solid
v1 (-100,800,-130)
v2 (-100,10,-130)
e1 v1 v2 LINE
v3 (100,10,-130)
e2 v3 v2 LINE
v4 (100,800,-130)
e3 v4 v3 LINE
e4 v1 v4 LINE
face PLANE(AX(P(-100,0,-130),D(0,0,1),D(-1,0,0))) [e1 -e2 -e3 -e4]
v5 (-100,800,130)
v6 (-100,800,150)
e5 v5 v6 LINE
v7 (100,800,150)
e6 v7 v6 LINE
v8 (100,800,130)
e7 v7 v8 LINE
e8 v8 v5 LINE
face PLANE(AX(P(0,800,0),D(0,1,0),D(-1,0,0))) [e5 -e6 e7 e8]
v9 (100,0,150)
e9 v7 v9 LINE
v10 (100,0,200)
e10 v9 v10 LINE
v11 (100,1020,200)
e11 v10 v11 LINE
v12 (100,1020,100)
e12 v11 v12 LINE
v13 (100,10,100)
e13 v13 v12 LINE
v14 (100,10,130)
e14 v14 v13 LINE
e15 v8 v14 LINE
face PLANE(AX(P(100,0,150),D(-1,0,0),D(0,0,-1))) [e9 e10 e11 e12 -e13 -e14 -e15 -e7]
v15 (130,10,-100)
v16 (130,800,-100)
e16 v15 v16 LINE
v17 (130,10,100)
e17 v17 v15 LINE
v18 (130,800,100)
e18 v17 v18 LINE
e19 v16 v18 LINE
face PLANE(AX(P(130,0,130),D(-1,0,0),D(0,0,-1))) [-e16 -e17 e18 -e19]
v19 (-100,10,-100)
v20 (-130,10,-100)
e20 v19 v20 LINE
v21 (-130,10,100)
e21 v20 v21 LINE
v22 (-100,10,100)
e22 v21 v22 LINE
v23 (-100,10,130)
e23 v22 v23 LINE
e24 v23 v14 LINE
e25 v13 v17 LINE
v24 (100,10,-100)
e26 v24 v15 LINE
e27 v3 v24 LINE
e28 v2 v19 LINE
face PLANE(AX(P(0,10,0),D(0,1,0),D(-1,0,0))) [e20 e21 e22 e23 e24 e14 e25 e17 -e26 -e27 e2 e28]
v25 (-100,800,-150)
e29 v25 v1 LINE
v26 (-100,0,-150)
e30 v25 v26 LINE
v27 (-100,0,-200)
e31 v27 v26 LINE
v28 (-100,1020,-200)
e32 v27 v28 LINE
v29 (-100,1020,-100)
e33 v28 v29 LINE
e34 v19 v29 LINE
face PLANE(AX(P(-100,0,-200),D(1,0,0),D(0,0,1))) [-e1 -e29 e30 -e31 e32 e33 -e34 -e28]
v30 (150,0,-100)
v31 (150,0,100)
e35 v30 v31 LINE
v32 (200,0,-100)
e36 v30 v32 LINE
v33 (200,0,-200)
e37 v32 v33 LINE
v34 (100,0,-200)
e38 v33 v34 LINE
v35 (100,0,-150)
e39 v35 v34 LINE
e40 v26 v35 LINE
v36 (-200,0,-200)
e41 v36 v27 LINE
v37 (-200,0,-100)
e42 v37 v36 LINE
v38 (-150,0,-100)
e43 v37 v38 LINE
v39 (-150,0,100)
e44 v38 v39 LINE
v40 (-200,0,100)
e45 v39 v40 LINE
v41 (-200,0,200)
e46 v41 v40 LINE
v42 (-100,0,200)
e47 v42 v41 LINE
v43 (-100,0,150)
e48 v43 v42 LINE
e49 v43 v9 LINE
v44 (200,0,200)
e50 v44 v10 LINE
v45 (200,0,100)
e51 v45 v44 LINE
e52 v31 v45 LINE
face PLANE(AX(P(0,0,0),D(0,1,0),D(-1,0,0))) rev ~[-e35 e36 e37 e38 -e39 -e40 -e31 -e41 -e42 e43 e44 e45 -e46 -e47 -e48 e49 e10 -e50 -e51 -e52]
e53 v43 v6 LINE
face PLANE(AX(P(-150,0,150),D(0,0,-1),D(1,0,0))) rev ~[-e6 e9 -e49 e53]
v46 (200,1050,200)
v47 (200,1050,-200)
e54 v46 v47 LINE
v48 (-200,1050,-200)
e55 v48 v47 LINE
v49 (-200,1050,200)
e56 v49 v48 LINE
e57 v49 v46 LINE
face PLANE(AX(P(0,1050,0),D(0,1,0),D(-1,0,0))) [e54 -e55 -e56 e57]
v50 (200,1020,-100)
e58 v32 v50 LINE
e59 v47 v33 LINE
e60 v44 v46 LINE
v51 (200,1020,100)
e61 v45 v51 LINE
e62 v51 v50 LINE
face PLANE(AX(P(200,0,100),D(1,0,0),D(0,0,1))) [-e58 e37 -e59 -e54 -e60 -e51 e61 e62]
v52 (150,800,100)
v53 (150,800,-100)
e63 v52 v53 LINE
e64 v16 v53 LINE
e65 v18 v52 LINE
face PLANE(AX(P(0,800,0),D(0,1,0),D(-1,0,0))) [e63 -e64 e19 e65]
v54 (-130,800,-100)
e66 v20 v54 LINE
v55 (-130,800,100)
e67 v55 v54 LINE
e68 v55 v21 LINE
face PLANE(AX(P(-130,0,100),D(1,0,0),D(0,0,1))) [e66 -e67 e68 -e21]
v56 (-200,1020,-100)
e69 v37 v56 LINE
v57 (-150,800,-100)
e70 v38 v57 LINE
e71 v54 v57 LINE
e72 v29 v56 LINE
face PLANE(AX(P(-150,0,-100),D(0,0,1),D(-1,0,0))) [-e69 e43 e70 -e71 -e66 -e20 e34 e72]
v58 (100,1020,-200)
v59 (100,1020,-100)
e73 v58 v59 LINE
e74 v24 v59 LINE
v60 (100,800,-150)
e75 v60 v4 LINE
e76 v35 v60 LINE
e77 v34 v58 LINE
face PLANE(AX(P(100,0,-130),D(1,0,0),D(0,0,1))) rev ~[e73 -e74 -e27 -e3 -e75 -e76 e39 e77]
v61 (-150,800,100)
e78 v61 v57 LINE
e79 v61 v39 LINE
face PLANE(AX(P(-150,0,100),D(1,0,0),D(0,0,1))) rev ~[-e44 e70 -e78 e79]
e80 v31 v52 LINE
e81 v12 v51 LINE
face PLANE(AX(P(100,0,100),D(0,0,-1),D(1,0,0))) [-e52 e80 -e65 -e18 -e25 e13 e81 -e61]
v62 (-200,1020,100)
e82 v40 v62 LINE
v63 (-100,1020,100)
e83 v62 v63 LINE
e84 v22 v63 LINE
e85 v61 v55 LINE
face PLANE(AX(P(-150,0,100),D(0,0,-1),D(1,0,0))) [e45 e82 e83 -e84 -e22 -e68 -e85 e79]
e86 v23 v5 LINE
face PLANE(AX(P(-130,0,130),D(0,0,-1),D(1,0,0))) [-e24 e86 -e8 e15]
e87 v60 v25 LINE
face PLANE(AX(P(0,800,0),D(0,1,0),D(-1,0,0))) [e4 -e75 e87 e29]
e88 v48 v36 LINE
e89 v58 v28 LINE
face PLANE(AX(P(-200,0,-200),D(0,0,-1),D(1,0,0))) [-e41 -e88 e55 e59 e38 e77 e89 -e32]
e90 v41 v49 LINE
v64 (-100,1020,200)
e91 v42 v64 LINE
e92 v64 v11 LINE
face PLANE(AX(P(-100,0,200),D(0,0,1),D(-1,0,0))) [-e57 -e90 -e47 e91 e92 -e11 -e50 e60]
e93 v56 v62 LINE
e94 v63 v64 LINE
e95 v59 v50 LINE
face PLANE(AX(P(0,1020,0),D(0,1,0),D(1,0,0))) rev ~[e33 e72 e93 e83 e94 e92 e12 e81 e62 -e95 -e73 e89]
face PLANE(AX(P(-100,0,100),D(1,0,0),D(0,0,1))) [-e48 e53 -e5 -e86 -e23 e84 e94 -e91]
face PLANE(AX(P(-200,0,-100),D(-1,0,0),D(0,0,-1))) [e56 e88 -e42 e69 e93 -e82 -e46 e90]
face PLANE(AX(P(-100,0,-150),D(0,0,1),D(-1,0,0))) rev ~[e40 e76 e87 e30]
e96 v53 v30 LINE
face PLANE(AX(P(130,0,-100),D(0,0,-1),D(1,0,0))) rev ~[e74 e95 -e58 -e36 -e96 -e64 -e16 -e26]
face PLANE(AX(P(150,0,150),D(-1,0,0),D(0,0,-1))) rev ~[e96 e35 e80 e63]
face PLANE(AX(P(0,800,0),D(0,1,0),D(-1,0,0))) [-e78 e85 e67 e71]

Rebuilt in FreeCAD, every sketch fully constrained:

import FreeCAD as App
import Part
import Sketcher

V = App.Vector

doc = App.newDocument("Part")
params = doc.addObject("Spreadsheet::Sheet", "Params")
for row, (alias, value) in enumerate([
    ("sketch1_width", "100 mm"),
    ("pad1_length", "1050 mm"),
    ("sketch2_width", "300 mm"),
    ("sketch2_width2", "260 mm"),
    ("pad2_length", "800 mm"),
    ("sketch3_width", "400 mm"),
    ("pad3_length", "30 mm"),
    ("sketch4_width", "300 mm"),
    ("pad4_length", "10 mm"),
], start=1):
    params.set(f"A{row}", alias)
    params.set(f"B{row}", "=" + value)
    params.setAlias(f"B{row}", alias)

body = doc.addObject("PartDesign::Body", "Body")
body.AllowCompound = True

# Sketch on XZ plane
sketch1 = doc.addObject("Sketcher::SketchObject", "Sketch")
body.addObject(sketch1)
sketch1.AttachmentSupport = (doc.XZ_Plane, [""])
sketch1.MapMode = "FlatFace"
sketch1.addGeometry([
    Part.LineSegment(V(-200, 100, 0), V(-200, 200, 0)),  # 0
    Part.LineSegment(V(-200, 200, 0), V(-100, 200, 0)),  # 1
    Part.LineSegment(V(-100, 200, 0), V(-100, 100, 0)),  # 2
    Part.LineSegment(V(-100, 100, 0), V(-200, 100, 0)),  # 3
    Part.LineSegment(V(100, 200, 0), V(200, 200, 0)),  # 4
    Part.LineSegment(V(200, 200, 0), V(200, 100, 0)),  # 5
    Part.LineSegment(V(200, 100, 0), V(100, 100, 0)),  # 6
    Part.LineSegment(V(100, 100, 0), V(100, 200, 0)),  # 7
    Part.LineSegment(V(-200, -100, 0), V(-100, -100, 0)),  # 8
    Part.LineSegment(V(-100, -100, 0), V(-100, -200, 0)),  # 9
    Part.LineSegment(V(-100, -200, 0), V(-200, -200, 0)),  # 10
    Part.LineSegment(V(-200, -200, 0), V(-200, -100, 0)),  # 11
    Part.LineSegment(V(200, -100, 0), V(200, -200, 0)),  # 12
    Part.LineSegment(V(200, -200, 0), V(100, -200, 0)),  # 13
    Part.LineSegment(V(100, -200, 0), V(100, -100, 0)),  # 14
    Part.LineSegment(V(100, -100, 0), V(200, -100, 0)),  # 15
], False)
sketch1.addConstraint([
    Sketcher.Constraint("Coincident", 0, 2, 1, 1),
    Sketcher.Constraint("Coincident", 1, 2, 2, 1),
    Sketcher.Constraint("Coincident", 2, 2, 3, 1),
    Sketcher.Constraint("Coincident", 3, 2, 0, 1),
    Sketcher.Constraint("Coincident", 4, 2, 5, 1),
    Sketcher.Constraint("Coincident", 5, 2, 6, 1),
    Sketcher.Constraint("Coincident", 6, 2, 7, 1),
    Sketcher.Constraint("Coincident", 7, 2, 4, 1),
    Sketcher.Constraint("Coincident", 8, 2, 9, 1),
    Sketcher.Constraint("Coincident", 9, 2, 10, 1),
    Sketcher.Constraint("Coincident", 10, 2, 11, 1),
    Sketcher.Constraint("Coincident", 11, 2, 8, 1),
    Sketcher.Constraint("Coincident", 12, 2, 13, 1),
    Sketcher.Constraint("Coincident", 13, 2, 14, 1),
    Sketcher.Constraint("Coincident", 14, 2, 15, 1),
    Sketcher.Constraint("Coincident", 15, 2, 12, 1),
    Sketcher.Constraint("Vertical", 0),
    Sketcher.Constraint("Horizontal", 1),
    Sketcher.Constraint("Vertical", 2),
    Sketcher.Constraint("Horizontal", 3),
    Sketcher.Constraint("Horizontal", 4),
    Sketcher.Constraint("Vertical", 5),
    Sketcher.Constraint("Horizontal", 6),
    Sketcher.Constraint("Vertical", 7),
    Sketcher.Constraint("Horizontal", 8),
    Sketcher.Constraint("Vertical", 9),
    Sketcher.Constraint("Horizontal", 10),
    Sketcher.Constraint("Vertical", 11),
    Sketcher.Constraint("Vertical", 12),
    Sketcher.Constraint("Horizontal", 13),
    Sketcher.Constraint("Vertical", 14),
    Sketcher.Constraint("Horizontal", 15),
    Sketcher.Constraint("Symmetric", 6, 2, 8, 2, -1, 1),
    Sketcher.Constraint("Symmetric", 4, 2, 10, 2, -1, 1),
    Sketcher.Constraint("Symmetric", 0, 2, 12, 2, -1, 1),
    Sketcher.Constraint("Symmetric", 2, 2, 14, 2, -1, 1),
    Sketcher.Constraint("Symmetric", 0, 2, 4, 2, -2),
    Sketcher.Constraint("Symmetric", 2, 2, 6, 2, -2),
    Sketcher.Constraint("Equal", 15, 0),
    Sketcher.Constraint("DistanceX", 1, 1, 1, 2, 100.0),
    Sketcher.Constraint("DistanceX", 1, 2, -1, 1, 100.0),
    Sketcher.Constraint("DistanceY", -1, 1, 2, 2, 100.0),
])
sketch1.setExpression("Constraints[39]", "Params.sketch1_width")
pad1 = doc.addObject("PartDesign::Pad", "Pad")
body.addObject(pad1)
pad1.Profile = sketch1
pad1.setExpression("Length", "Params.pad1_length")
pad1.Reversed = True

# Sketch on XZ plane
sketch2 = doc.addObject("Sketcher::SketchObject", "Sketch001")
body.addObject(sketch2)
sketch2.AttachmentSupport = (doc.XZ_Plane, [""])
sketch2.MapMode = "FlatFace"
sketch2.addGeometry([
    Part.LineSegment(V(-150, 150, 0), V(150, 150, 0)),  # 0
    Part.LineSegment(V(150, 150, 0), V(150, -150, 0)),  # 1
    Part.LineSegment(V(150, -150, 0), V(-150, -150, 0)),  # 2
    Part.LineSegment(V(-150, -150, 0), V(-150, 150, 0)),  # 3
    Part.LineSegment(V(-130, 130, 0), V(-130, -130, 0)),  # 4
    Part.LineSegment(V(-130, -130, 0), V(130, -130, 0)),  # 5
    Part.LineSegment(V(130, -130, 0), V(130, 130, 0)),  # 6
    Part.LineSegment(V(130, 130, 0), V(-130, 130, 0)),  # 7
], False)
sketch2.addConstraint([
    Sketcher.Constraint("Coincident", 0, 2, 1, 1),
    Sketcher.Constraint("Coincident", 1, 2, 2, 1),
    Sketcher.Constraint("Coincident", 2, 2, 3, 1),
    Sketcher.Constraint("Coincident", 3, 2, 0, 1),
    Sketcher.Constraint("Coincident", 4, 2, 5, 1),
    Sketcher.Constraint("Coincident", 5, 2, 6, 1),
    Sketcher.Constraint("Coincident", 6, 2, 7, 1),
    Sketcher.Constraint("Coincident", 7, 2, 4, 1),
    Sketcher.Constraint("Horizontal", 0),
    Sketcher.Constraint("Vertical", 1),
    Sketcher.Constraint("Horizontal", 2),
    Sketcher.Constraint("Vertical", 3),
    Sketcher.Constraint("Vertical", 4),
    Sketcher.Constraint("Horizontal", 5),
    Sketcher.Constraint("Vertical", 6),
    Sketcher.Constraint("Horizontal", 7),
    Sketcher.Constraint("Symmetric", 0, 2, 2, 2, -1, 1),
    Sketcher.Constraint("Symmetric", 4, 2, 6, 2, -1, 1),
    Sketcher.Constraint("Equal", 2, 1),
    Sketcher.Constraint("Equal", 7, 4),
    Sketcher.Constraint("DistanceX", 0, 1, 0, 2, 300.0),
    Sketcher.Constraint("DistanceX", 5, 1, 5, 2, 260.0),
])
sketch2.setExpression("Constraints[20]", "Params.sketch2_width")
sketch2.setExpression("Constraints[21]", "Params.sketch2_width2")
pad2 = doc.addObject("PartDesign::Pad", "Pad001")
body.addObject(pad2)
pad2.Profile = sketch2
pad2.setExpression("Length", "Params.pad2_length")
pad2.Reversed = True

# Sketch on XZ plane
sketch3 = doc.addObject("Sketcher::SketchObject", "Sketch002")
body.addObject(sketch3)
sketch3.AttachmentSupport = (doc.XZ_Plane, [""])
sketch3.MapMode = "FlatFace"
sketch3.AttachmentOffset = App.Placement(V(0, 0, -1050), App.Rotation())
sketch3.addGeometry([
    Part.LineSegment(V(-200, -200, 0), V(-200, 200, 0)),
    Part.LineSegment(V(-200, 200, 0), V(200, 200, 0)),
    Part.LineSegment(V(200, 200, 0), V(200, -200, 0)),
    Part.LineSegment(V(200, -200, 0), V(-200, -200, 0)),
], False)
sketch3.addConstraint([
    Sketcher.Constraint("Coincident", 0, 2, 1, 1),
    Sketcher.Constraint("Coincident", 1, 2, 2, 1),
    Sketcher.Constraint("Coincident", 2, 2, 3, 1),
    Sketcher.Constraint("Coincident", 3, 2, 0, 1),
    Sketcher.Constraint("Vertical", 0),
    Sketcher.Constraint("Horizontal", 1),
    Sketcher.Constraint("Vertical", 2),
    Sketcher.Constraint("Horizontal", 3),
    Sketcher.Constraint("Symmetric", 0, 2, 2, 2, -1, 1),
    Sketcher.Constraint("Equal", 3, 0),
    Sketcher.Constraint("DistanceX", 1, 1, 1, 2, 400.0),
])
sketch3.setExpression("Constraints[10]", "Params.sketch3_width")
pad3 = doc.addObject("PartDesign::Pad", "Pad002")
body.addObject(pad3)
pad3.Profile = sketch3
pad3.setExpression("Length", "Params.pad3_length")

# Sketch on XZ plane
sketch4 = doc.addObject("Sketcher::SketchObject", "Sketch003")
body.addObject(sketch4)
sketch4.AttachmentSupport = (doc.XZ_Plane, [""])
sketch4.MapMode = "FlatFace"
sketch4.addGeometry([
    Part.LineSegment(V(-150, 150, 0), V(150, 150, 0)),
    Part.LineSegment(V(150, 150, 0), V(150, -150, 0)),
    Part.LineSegment(V(150, -150, 0), V(-150, -150, 0)),
    Part.LineSegment(V(-150, -150, 0), V(-150, 150, 0)),
], False)
sketch4.addConstraint([
    Sketcher.Constraint("Coincident", 0, 2, 1, 1),
    Sketcher.Constraint("Coincident", 1, 2, 2, 1),
    Sketcher.Constraint("Coincident", 2, 2, 3, 1),
    Sketcher.Constraint("Coincident", 3, 2, 0, 1),
    Sketcher.Constraint("Horizontal", 0),
    Sketcher.Constraint("Vertical", 1),
    Sketcher.Constraint("Horizontal", 2),
    Sketcher.Constraint("Vertical", 3),
    Sketcher.Constraint("Symmetric", 0, 2, 2, 2, -1, 1),
    Sketcher.Constraint("Equal", 2, 1),
    Sketcher.Constraint("DistanceX", 0, 1, 0, 2, 300.0),
])
sketch4.setExpression("Constraints[10]", "Params.sketch4_width")
pad4 = doc.addObject("PartDesign::Pad", "Pad003")
body.addObject(pad4)
pad4.Profile = sketch4
pad4.setExpression("Length", "Params.pad4_length")
pad4.Reversed = True

doc.recompute()
